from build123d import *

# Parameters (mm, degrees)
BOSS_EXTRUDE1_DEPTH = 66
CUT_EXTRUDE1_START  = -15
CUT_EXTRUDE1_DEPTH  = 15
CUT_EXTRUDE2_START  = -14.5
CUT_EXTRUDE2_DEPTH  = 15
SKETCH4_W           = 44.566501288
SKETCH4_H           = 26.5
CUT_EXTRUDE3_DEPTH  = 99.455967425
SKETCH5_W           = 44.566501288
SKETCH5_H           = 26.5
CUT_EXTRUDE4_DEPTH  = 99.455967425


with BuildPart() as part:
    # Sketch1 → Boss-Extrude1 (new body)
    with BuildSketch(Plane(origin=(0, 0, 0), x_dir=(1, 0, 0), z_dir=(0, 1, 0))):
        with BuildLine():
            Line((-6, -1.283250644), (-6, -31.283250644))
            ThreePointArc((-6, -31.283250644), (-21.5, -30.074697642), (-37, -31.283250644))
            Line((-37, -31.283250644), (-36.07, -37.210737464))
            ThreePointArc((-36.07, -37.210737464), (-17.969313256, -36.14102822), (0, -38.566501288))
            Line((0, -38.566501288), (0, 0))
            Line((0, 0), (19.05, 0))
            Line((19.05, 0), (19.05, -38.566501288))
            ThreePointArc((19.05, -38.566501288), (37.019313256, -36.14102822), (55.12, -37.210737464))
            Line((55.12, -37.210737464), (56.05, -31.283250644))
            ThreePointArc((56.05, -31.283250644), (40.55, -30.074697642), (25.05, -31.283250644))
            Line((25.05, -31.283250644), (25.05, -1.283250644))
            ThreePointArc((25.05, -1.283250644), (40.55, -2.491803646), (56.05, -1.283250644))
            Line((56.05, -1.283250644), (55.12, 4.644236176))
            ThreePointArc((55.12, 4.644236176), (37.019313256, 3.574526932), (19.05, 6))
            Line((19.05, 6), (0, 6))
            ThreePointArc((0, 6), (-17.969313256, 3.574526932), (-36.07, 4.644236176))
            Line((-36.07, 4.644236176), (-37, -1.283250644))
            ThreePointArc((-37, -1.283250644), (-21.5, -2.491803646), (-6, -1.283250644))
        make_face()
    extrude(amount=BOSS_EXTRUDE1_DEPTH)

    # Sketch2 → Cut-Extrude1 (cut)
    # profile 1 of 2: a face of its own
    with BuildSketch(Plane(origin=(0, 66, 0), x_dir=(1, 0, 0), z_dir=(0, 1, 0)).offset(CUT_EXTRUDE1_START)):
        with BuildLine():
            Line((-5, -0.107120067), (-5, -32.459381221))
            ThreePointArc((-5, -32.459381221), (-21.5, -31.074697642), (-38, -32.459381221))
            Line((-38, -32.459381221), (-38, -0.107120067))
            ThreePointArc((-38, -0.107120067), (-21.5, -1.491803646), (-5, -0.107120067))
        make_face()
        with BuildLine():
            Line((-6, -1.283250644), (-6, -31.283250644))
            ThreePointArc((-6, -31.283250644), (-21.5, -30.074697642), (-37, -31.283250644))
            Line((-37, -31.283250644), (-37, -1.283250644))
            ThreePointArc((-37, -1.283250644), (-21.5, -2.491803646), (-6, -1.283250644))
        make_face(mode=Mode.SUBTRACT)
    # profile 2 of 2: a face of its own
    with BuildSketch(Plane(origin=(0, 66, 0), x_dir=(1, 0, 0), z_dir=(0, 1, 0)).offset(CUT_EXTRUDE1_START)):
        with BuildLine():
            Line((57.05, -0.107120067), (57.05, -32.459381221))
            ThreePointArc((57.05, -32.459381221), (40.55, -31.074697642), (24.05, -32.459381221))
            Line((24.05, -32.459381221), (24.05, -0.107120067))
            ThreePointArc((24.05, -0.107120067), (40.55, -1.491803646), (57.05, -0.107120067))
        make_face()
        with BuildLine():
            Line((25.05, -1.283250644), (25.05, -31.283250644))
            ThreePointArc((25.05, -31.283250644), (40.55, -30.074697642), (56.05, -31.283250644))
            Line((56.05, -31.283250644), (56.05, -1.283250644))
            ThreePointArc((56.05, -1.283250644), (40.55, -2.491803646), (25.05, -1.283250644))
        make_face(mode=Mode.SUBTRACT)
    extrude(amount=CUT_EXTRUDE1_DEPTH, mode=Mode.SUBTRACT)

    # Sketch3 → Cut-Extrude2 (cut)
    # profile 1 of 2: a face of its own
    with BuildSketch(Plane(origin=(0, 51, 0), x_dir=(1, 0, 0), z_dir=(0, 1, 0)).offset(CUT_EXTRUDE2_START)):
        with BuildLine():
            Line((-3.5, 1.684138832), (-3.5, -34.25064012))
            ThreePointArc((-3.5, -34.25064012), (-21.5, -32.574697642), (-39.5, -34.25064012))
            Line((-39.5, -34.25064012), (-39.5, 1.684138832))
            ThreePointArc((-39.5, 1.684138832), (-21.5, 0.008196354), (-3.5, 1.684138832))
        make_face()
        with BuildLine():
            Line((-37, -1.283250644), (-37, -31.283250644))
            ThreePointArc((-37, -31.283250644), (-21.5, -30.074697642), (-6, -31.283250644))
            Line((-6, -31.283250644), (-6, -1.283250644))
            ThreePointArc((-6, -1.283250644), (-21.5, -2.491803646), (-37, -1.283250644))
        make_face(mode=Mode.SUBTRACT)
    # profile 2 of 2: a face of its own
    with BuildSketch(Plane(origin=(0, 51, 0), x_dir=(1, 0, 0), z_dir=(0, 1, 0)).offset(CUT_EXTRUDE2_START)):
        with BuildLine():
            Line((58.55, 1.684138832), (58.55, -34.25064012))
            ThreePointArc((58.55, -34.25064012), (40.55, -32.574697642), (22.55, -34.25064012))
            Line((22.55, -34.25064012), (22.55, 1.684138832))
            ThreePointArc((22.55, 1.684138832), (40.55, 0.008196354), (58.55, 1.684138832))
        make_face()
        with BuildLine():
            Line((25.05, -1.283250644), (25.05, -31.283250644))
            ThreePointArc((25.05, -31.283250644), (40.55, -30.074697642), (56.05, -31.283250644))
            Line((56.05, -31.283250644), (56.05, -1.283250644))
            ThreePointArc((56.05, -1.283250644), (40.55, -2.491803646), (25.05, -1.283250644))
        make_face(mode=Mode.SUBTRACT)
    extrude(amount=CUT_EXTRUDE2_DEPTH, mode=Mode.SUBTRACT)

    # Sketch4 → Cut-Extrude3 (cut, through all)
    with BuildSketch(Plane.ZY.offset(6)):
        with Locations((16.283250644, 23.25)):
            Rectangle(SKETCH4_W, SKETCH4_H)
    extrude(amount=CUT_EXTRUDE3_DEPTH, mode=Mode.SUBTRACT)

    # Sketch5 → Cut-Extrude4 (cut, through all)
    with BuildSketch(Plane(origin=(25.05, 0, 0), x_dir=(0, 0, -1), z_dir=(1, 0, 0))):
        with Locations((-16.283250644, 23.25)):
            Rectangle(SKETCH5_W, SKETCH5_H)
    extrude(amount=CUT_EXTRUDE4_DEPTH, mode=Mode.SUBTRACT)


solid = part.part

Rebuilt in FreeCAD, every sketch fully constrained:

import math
import FreeCAD as App
import Part
import Sketcher


def add_polygon(sketch, points):
    """Adds a closed chain of lines whose ends are joined by coincident constraints."""
    first, n = sketch.GeometryCount, len(points)
    for a, b in zip(points, points[1:] + points[:1]):
        sketch.addGeometry(Part.LineSegment(App.Vector(*a, 0), App.Vector(*b, 0)), False)
    for i in range(n):
        sketch.addConstraint(Sketcher.Constraint("Coincident", first + i, 2, first + (i + 1) % n, 1))

doc = App.newDocument("Part")
body = doc.addObject("PartDesign::Body", "Body")

# Sketch on XZ plane
sketch1 = body.newObject("Sketcher::SketchObject", "Sketch")
sketch1.AttachmentSupport = (doc.getObject("XZ_Plane"), [""])
sketch1.MapMode = "FlatFace"
sketch1.addGeometry(Part.LineSegment(App.Vector(-6, 1, 0), App.Vector(-6, 31, 0)), False)
sketch1.addGeometry(Part.ArcOfCircle(Part.Circle(App.Vector(-22, 130, 0), App.Vector(0, 0, 1), 100), math.radians(-98.92), math.radians(-81.08)), False)
sketch1.addGeometry(Part.LineSegment(App.Vector(-37, 31, 0), App.Vector(-36, 37, 0)), False)
sketch1.addGeometry(Part.ArcOfCircle(Part.Circle(App.Vector(-22, 130, 0), App.Vector(0, 0, 1), 94), math.radians(-99), math.radians(-77)), False)
sketch1.addGeometry(Part.LineSegment(App.Vector(0, 39, 0), App.Vector(0, 0, 0)), False)
sketch1.addGeometry(Part.LineSegment(App.Vector(0, 0, 0), App.Vector(19, 0, 0)), False)
sketch1.addGeometry(Part.LineSegment(App.Vector(19, 0, 0), App.Vector(19, 39, 0)), False)
sketch1.addGeometry(Part.ArcOfCircle(Part.Circle(App.Vector(41, 130, 0), App.Vector(0, 0, 1), 94), math.radians(-103), math.radians(-81)), False)
sketch1.addGeometry(Part.LineSegment(App.Vector(55, 37, 0), App.Vector(56, 31, 0)), False)
sketch1.addGeometry(Part.ArcOfCircle(Part.Circle(App.Vector(41, 130, 0), App.Vector(0, 0, 1), 100), math.radians(-98.92), math.radians(-81.08)), False)
sketch1.addGeometry(Part.LineSegment(App.Vector(25, 31, 0), App.Vector(25, 1, 0)), False)
sketch1.addGeometry(Part.ArcOfCircle(Part.Circle(App.Vector(41, -98, 0), App.Vector(0, 0, 1), 100), math.radians(81.08), math.radians(98.92)), False)
sketch1.addGeometry(Part.LineSegment(App.Vector(56, 1, 0), App.Vector(55, -5, 0)), False)
sketch1.addGeometry(Part.ArcOfCircle(Part.Circle(App.Vector(41, -98, 0), App.Vector(0, 0, 1), 94), math.radians(81), math.radians(103)), False)
sketch1.addGeometry(Part.LineSegment(App.Vector(19, -6, 0), App.Vector(0, -6, 0)), False)
sketch1.addGeometry(Part.ArcOfCircle(Part.Circle(App.Vector(-22, -98, 0), App.Vector(0, 0, 1), 94), math.radians(77), math.radians(99)), False)
sketch1.addGeometry(Part.LineSegment(App.Vector(-36, -5, 0), App.Vector(-37, 1, 0)), False)
sketch1.addGeometry(Part.ArcOfCircle(Part.Circle(App.Vector(-22, -98, 0), App.Vector(0, 0, 1), 100), math.radians(81.08), math.radians(98.92)), False)
sketch1.addConstraint(Sketcher.Constraint("Coincident", 0, 2, 1, 2))
sketch1.addConstraint(Sketcher.Constraint("Coincident", 1, 1, 2, 1))
sketch1.addConstraint(Sketcher.Constraint("Coincident", 2, 2, 3, 1))
sketch1.addConstraint(Sketcher.Constraint("Coincident", 3, 2, 4, 1))
sketch1.addConstraint(Sketcher.Constraint("Coincident", 4, 2, 5, 1))
sketch1.addConstraint(Sketcher.Constraint("Coincident", 5, 2, 6, 1))
sketch1.addConstraint(Sketcher.Constraint("Coincident", 6, 2, 7, 1))
sketch1.addConstraint(Sketcher.Constraint("Coincident", 7, 2, 8, 1))
sketch1.addConstraint(Sketcher.Constraint("Coincident", 8, 2, 9, 2))
sketch1.addConstraint(Sketcher.Constraint("Coincident", 9, 1, 10, 1))
sketch1.addConstraint(Sketcher.Constraint("Coincident", 10, 2, 11, 2))
sketch1.addConstraint(Sketcher.Constraint("Coincident", 11, 1, 12, 1))
sketch1.addConstraint(Sketcher.Constraint("Coincident", 12, 2, 13, 1))
sketch1.addConstraint(Sketcher.Constraint("Coincident", 13, 2, 14, 1))
sketch1.addConstraint(Sketcher.Constraint("Coincident", 14, 2, 15, 1))
sketch1.addConstraint(Sketcher.Constraint("Coincident", 15, 2, 16, 1))
sketch1.addConstraint(Sketcher.Constraint("Coincident", 16, 2, 17, 2))
sketch1.addConstraint(Sketcher.Constraint("Coincident", 17, 1, 0, 1))
sketch1.addConstraint(Sketcher.Constraint("Vertical", 0))
sketch1.addConstraint(Sketcher.Constraint("Vertical", 4))
sketch1.addConstraint(Sketcher.Constraint("Horizontal", 5))
sketch1.addConstraint(Sketcher.Constraint("Vertical", 6))
sketch1.addConstraint(Sketcher.Constraint("Vertical", 10))
sketch1.addConstraint(Sketcher.Constraint("Horizontal", 14))
sketch1.addConstraint(Sketcher.Constraint("Coincident", 4, 2, -1, 1))
sketch1.addConstraint(Sketcher.Constraint("Coincident", 3, 3, 1, 3))
sketch1.addConstraint(Sketcher.Constraint("Coincident", 9, 3, 7, 3))
sketch1.addConstraint(Sketcher.Constraint("Coincident", 13, 3, 11, 3))
sketch1.addConstraint(Sketcher.Constraint("Coincident", 17, 3, 15, 3))
sketch1.addConstraint(Sketcher.Constraint("Equal", 3, 7))
sketch1.addConstraint(Sketcher.Constraint("Equal", 1, 9))
sketch1.addConstraint(Sketcher.Constraint("Equal", 9, 11))
sketch1.addConstraint(Sketcher.Constraint("Equal", 7, 13))
sketch1.addConstraint(Sketcher.Constraint("Equal", 13, 15))
sketch1.addConstraint(Sketcher.Constraint("Equal", 11, 17))
sketch1.addConstraint(Sketcher.Constraint("PointOnObject", 14, 2, -2))
sketch1.addConstraint(Sketcher.Constraint("Parallel", 2, 12))
sketch1.addConstraint(Sketcher.Constraint("Parallel", 8, 16))
sketch1.addConstraint(Sketcher.Constraint("Horizontal", 3, 3, 7, 3))
sketch1.addConstraint(Sketcher.Constraint("Horizontal", 13, 3, 15, 3))
sketch1.addConstraint(Sketcher.Constraint("Horizontal", 0, 2, 1, 1))
sketch1.addConstraint(Sketcher.Constraint("Horizontal", 3, 2, 6, 2))
sketch1.addConstraint(Sketcher.Constraint("Horizontal", 2, 2, 7, 2))
sketch1.addConstraint(Sketcher.Constraint("Horizontal", 1, 1, 8, 2))
sketch1.addConstraint(Sketcher.Constraint("Horizontal", 8, 2, 9, 1))
sketch1.addConstraint(Sketcher.Constraint("Horizontal", 10, 2, 11, 1))
sketch1.addConstraint(Sketcher.Constraint("Horizontal", 12, 2, 15, 2))
sketch1.addConstraint(Sketcher.Constraint("Horizontal", 16, 2, 17, 1))
sketch1.addConstraint(Sketcher.Constraint("Vertical", 9, 3, 11, 3))
sketch1.addConstraint(Sketcher.Constraint("Radius", 1, 100.0))
sketch1.addConstraint(Sketcher.Constraint("Radius", 3, 94.0))
sketch1.addConstraint(Sketcher.Constraint("DistanceY", 0, 1, 0, 2, 30.0))
sketch1.addConstraint(Sketcher.Constraint("DistanceX", 0, 2, -1, 1, 6.0))
sketch1.addConstraint(Sketcher.Constraint("DistanceX", 1, 1, -1, 1, 37.0))
sketch1.addConstraint(Sketcher.Constraint("DistanceY", 13, 2, -1, 1, 6.0))
sketch1.addConstraint(Sketcher.Constraint("DistanceX", 5, 1, 5, 2, 19.05))
sketch1.addConstraint(Sketcher.Constraint("DistanceX", 2, 2, -1, 1, 36.07))
pad1 = body.newObject("PartDesign::Pad", "Pad")
pad1.Profile = sketch1
pad1.Length = 66
pad1.Reversed = True

# Sketch on XZ plane
sketch2 = body.newObject("Sketcher::SketchObject", "Sketch001")
sketch2.AttachmentSupport = (doc.getObject("XZ_Plane"), [""])
sketch2.MapMode = "FlatFace"
sketch2.AttachmentOffset = App.Placement(App.Vector(0, 0, -51), App.Rotation())
sketch2.addGeometry(Part.LineSegment(App.Vector(-5, 32, 0), App.Vector(-5, 0, 0)), False)
sketch2.addGeometry(Part.ArcOfCircle(Part.Circle(App.Vector(-22, -98, 0), App.Vector(0, 0, 1), 99), math.radians(80.41), math.radians(99.59)), False)
sketch2.addGeometry(Part.LineSegment(App.Vector(-38, 0, 0), App.Vector(-38, 32, 0)), False)
sketch2.addGeometry(Part.ArcOfCircle(Part.Circle(App.Vector(-22, 130, 0), App.Vector(0, 0, 1), 99), math.radians(-99.59), math.radians(-80.41)), False)
sketch2.addGeometry(Part.LineSegment(App.Vector(-6, 1, 0), App.Vector(-6, 31, 0)), False)
sketch2.addGeometry(Part.ArcOfCircle(Part.Circle(App.Vector(-22, 130, 0), App.Vector(0, 0, 1), 100), math.radians(-98.92), math.radians(-81.08)), False)
sketch2.addGeometry(Part.LineSegment(App.Vector(-37, 31, 0), App.Vector(-37, 1, 0)), False)
sketch2.addGeometry(Part.ArcOfCircle(Part.Circle(App.Vector(-22, -98, 0), App.Vector(0, 0, 1), 100), math.radians(81.08), math.radians(98.92)), False)
sketch2.addGeometry(Part.LineSegment(App.Vector(57, 32, 0), App.Vector(57, 0, 0)), False)
sketch2.addGeometry(Part.ArcOfCircle(Part.Circle(App.Vector(41, -98, 0), App.Vector(0, 0, 1), 99), math.radians(80.41), math.radians(99.59)), False)
sketch2.addGeometry(Part.LineSegment(App.Vector(24, 0, 0), App.Vector(24, 32, 0)), False)
sketch2.addGeometry(Part.ArcOfCircle(Part.Circle(App.Vector(41, 130, 0), App.Vector(0, 0, 1), 99), math.radians(-99.59), math.radians(-80.41)), False)
sketch2.addGeometry(Part.ArcOfCircle(Part.Circle(App.Vector(41, -98, 0), App.Vector(0, 0, 1), 100), math.radians(81.08), math.radians(98.92)), False)
sketch2.addGeometry(Part.LineSegment(App.Vector(56, 1, 0), App.Vector(56, 31, 0)), False)
sketch2.addGeometry(Part.ArcOfCircle(Part.Circle(App.Vector(41, 130, 0), App.Vector(0, 0, 1), 100), math.radians(-98.92), math.radians(-81.08)), False)
sketch2.addGeometry(Part.LineSegment(App.Vector(25, 31, 0), App.Vector(25, 1, 0)), False)
sketch2.addConstraint(Sketcher.Constraint("Coincident", 0, 2, 1, 1))
sketch2.addConstraint(Sketcher.Constraint("Coincident", 1, 2, 2, 1))
sketch2.addConstraint(Sketcher.Constraint("Coincident", 2, 2, 3, 1))
sketch2.addConstraint(Sketcher.Constraint("Coincident", 3, 2, 0, 1))
sketch2.addConstraint(Sketcher.Constraint("Coincident", 4, 2, 5, 2))
sketch2.addConstraint(Sketcher.Constraint("Coincident", 5, 1, 6, 1))
sketch2.addConstraint(Sketcher.Constraint("Coincident", 6, 2, 7, 2))
sketch2.addConstraint(Sketcher.Constraint("Coincident", 7, 1, 4, 1))
sketch2.addConstraint(Sketcher.Constraint("Coincident", 8, 2, 9, 1))
sketch2.addConstraint(Sketcher.Constraint("Coincident", 9, 2, 10, 1))
sketch2.addConstraint(Sketcher.Constraint("Coincident", 10, 2, 11, 1))
sketch2.addConstraint(Sketcher.Constraint("Coincident", 11, 2, 8, 1))
sketch2.addConstraint(Sketcher.Constraint("Coincident", 12, 1, 13, 1))
sketch2.addConstraint(Sketcher.Constraint("Coincident", 13, 2, 14, 2))
sketch2.addConstraint(Sketcher.Constraint("Coincident", 14, 1, 15, 1))
sketch2.addConstraint(Sketcher.Constraint("Coincident", 15, 2, 12, 2))
sketch2.addConstraint(Sketcher.Constraint("Vertical", 0))
sketch2.addConstraint(Sketcher.Constraint("Vertical", 2))
sketch2.addConstraint(Sketcher.Constraint("Vertical", 4))
sketch2.addConstraint(Sketcher.Constraint("Vertical", 6))
sketch2.addConstraint(Sketcher.Constraint("Vertical", 8))
sketch2.addConstraint(Sketcher.Constraint("Vertical", 10))
sketch2.addConstraint(Sketcher.Constraint("Vertical", 13))
sketch2.addConstraint(Sketcher.Constraint("Vertical", 15))
sketch2.addConstraint(Sketcher.Constraint("Coincident", 5, 3, 3, 3))
sketch2.addConstraint(Sketcher.Constraint("Coincident", 7, 3, 1, 3))
sketch2.addConstraint(Sketcher.Constraint("Coincident", 12, 3, 9, 3))
sketch2.addConstraint(Sketcher.Constraint("Coincident", 14, 3, 11, 3))
sketch2.addConstraint(Sketcher.Constraint("Equal", 1, 3))
sketch2.addConstraint(Sketcher.Constraint("Equal", 5, 7))
sketch2.addConstraint(Sketcher.Constraint("Equal", 3, 9))
sketch2.addConstraint(Sketcher.Constraint("Equal", 9, 11))
sketch2.addConstraint(Sketcher.Constraint("Equal", 7, 12))
sketch2.addConstraint(Sketcher.Constraint("Equal", 12, 14))
sketch2.addConstraint(Sketcher.Constraint("Horizontal", 7, 3, 9, 3))
sketch2.addConstraint(Sketcher.Constraint("Horizontal", 5, 3, 11, 3))
sketch2.addConstraint(Sketcher.Constraint("Horizontal", 0, 2, 1, 2))
sketch2.addConstraint(Sketcher.Constraint("Horizontal", 2, 2, 3, 2))
sketch2.addConstraint(Sketcher.Constraint("Horizontal", 4, 2, 5, 1))
sketch2.addConstraint(Sketcher.Constraint("Horizontal", 1, 2, 8, 2))
sketch2.addConstraint(Sketcher.Constraint("Horizontal", 8, 2, 9, 2))
sketch2.addConstraint(Sketcher.Constraint("Horizontal", 3, 2, 10, 2))
sketch2.addConstraint(Sketcher.Constraint("Horizontal", 7, 1, 12, 1))
sketch2.addConstraint(Sketcher.Constraint("Horizontal", 13, 2, 14, 1))
sketch2.addConstraint(Sketcher.Constraint("Radius", 1, 99.0))
sketch2.addConstraint(Sketcher.Constraint("Radius", 5, 100.0))
sketch2.addConstraint(Sketcher.Constraint("DistanceY", 4, 1, 4, 2, 30.0))
sketch2.addConstraint(Sketcher.Constraint("DistanceX", 0, 2, -1, 1, 5.0))
sketch2.addConstraint(Sketcher.Constraint("DistanceX", 1, 2, -1, 1, 38.0))
sketch2.addConstraint(Sketcher.Constraint("DistanceX", 4, 2, -1, 1, 6.0))
sketch2.addConstraint(Sketcher.Constraint("DistanceX", -1, 1, 9, 3, 40.55))
sketch2.addConstraint(Sketcher.Constraint("DistanceY", -1, 1, 0, 2, 0.10712))
pocket1 = body.newObject("PartDesign::Pocket", "Pocket")
pocket1.Profile = sketch2
pocket1.Length = 15

# Sketch on XZ plane
sketch3 = body.newObject("Sketcher::SketchObject", "Sketch002")
sketch3.AttachmentSupport = (doc.getObject("XZ_Plane"), [""])
sketch3.MapMode = "FlatFace"
sketch3.AttachmentOffset = App.Placement(App.Vector(0, 0, -36.5), App.Rotation())
sketch3.addGeometry(Part.LineSegment(App.Vector(-4, 34, 0), App.Vector(-4, -2, 0)), False)
sketch3.addGeometry(Part.ArcOfCircle(Part.Circle(App.Vector(-22, -98, 0), App.Vector(0, 0, 1), 97), math.radians(79), math.radians(101)), False)
sketch3.addGeometry(Part.LineSegment(App.Vector(-40, -2, 0), App.Vector(-40, 34, 0)), False)
sketch3.addGeometry(Part.ArcOfCircle(Part.Circle(App.Vector(-22, 130, 0), App.Vector(0, 0, 1), 97), math.radians(-101), math.radians(-79)), False)
sketch3.addGeometry(Part.ArcOfCircle(Part.Circle(App.Vector(-22, -98, 0), App.Vector(0, 0, 1), 100), math.radians(81.08), math.radians(98.92)), False)
sketch3.addGeometry(Part.LineSegment(App.Vector(-6, 1, 0), App.Vector(-6, 31, 0)), False)
sketch3.addGeometry(Part.ArcOfCircle(Part.Circle(App.Vector(-22, 130, 0), App.Vector(0, 0, 1), 100), math.radians(-98.92), math.radians(-81.08)), False)
sketch3.addGeometry(Part.LineSegment(App.Vector(-37, 31, 0), App.Vector(-37, 1, 0)), False)
sketch3.addGeometry(Part.LineSegment(App.Vector(59, 34, 0), App.Vector(59, -2, 0)), False)
sketch3.addGeometry(Part.ArcOfCircle(Part.Circle(App.Vector(41, -98, 0), App.Vector(0, 0, 1), 97), math.radians(79), math.radians(101)), False)
sketch3.addGeometry(Part.LineSegment(App.Vector(23, -2, 0), App.Vector(23, 34, 0)), False)
sketch3.addGeometry(Part.ArcOfCircle(Part.Circle(App.Vector(41, 130, 0), App.Vector(0, 0, 1), 97), math.radians(-101), math.radians(-79)), False)
sketch3.addGeometry(Part.ArcOfCircle(Part.Circle(App.Vector(41, -98, 0), App.Vector(0, 0, 1), 100), math.radians(81.08), math.radians(98.92)), False)
sketch3.addGeometry(Part.LineSegment(App.Vector(56, 1, 0), App.Vector(56, 31, 0)), False)
sketch3.addGeometry(Part.ArcOfCircle(Part.Circle(App.Vector(41, 130, 0), App.Vector(0, 0, 1), 100), math.radians(-98.92), math.radians(-81.08)), False)
sketch3.addGeometry(Part.LineSegment(App.Vector(25, 31, 0), App.Vector(25, 1, 0)), False)
sketch3.addConstraint(Sketcher.Constraint("Coincident", 0, 2, 1, 1))
sketch3.addConstraint(Sketcher.Constraint("Coincident", 1, 2, 2, 1))
sketch3.addConstraint(Sketcher.Constraint("Coincident", 2, 2, 3, 1))
sketch3.addConstraint(Sketcher.Constraint("Coincident", 3, 2, 0, 1))
sketch3.addConstraint(Sketcher.Constraint("Coincident", 4, 1, 5, 1))
sketch3.addConstraint(Sketcher.Constraint("Coincident", 5, 2, 6, 2))
sketch3.addConstraint(Sketcher.Constraint("Coincident", 6, 1, 7, 1))
sketch3.addConstraint(Sketcher.Constraint("Coincident", 7, 2, 4, 2))
sketch3.addConstraint(Sketcher.Constraint("Coincident", 8, 2, 9, 1))
sketch3.addConstraint(Sketcher.Constraint("Coincident", 9, 2, 10, 1))
sketch3.addConstraint(Sketcher.Constraint("Coincident", 10, 2, 11, 1))
sketch3.addConstraint(Sketcher.Constraint("Coincident", 11, 2, 8, 1))
sketch3.addConstraint(Sketcher.Constraint("Coincident", 12, 1, 13, 1))
sketch3.addConstraint(Sketcher.Constraint("Coincident", 13, 2, 14, 2))
sketch3.addConstraint(Sketcher.Constraint("Coincident", 14, 1, 15, 1))
sketch3.addConstraint(Sketcher.Constraint("Coincident", 15, 2, 12, 2))
sketch3.addConstraint(Sketcher.Constraint("Vertical", 0))
sketch3.addConstraint(Sketcher.Constraint("Vertical", 2))
sketch3.addConstraint(Sketcher.Constraint("Vertical", 5))
sketch3.addConstraint(Sketcher.Constraint("Vertical", 7))
sketch3.addConstraint(Sketcher.Constraint("Vertical", 8))
sketch3.addConstraint(Sketcher.Constraint("Vertical", 10))
sketch3.addConstraint(Sketcher.Constraint("Vertical", 13))
sketch3.addConstraint(Sketcher.Constraint("Vertical", 15))
sketch3.addConstraint(Sketcher.Constraint("Coincident", 4, 3, 1, 3))
sketch3.addConstraint(Sketcher.Constraint("Coincident", 6, 3, 3, 3))
sketch3.addConstraint(Sketcher.Constraint("Coincident", 12, 3, 9, 3))
sketch3.addConstraint(Sketcher.Constraint("Coincident", 14, 3, 11, 3))
sketch3.addConstraint(Sketcher.Constraint("Equal", 1, 3))
sketch3.addConstraint(Sketcher.Constraint("Equal", 4, 6))
sketch3.addConstraint(Sketcher.Constraint("Equal", 3, 9))
sketch3.addConstraint(Sketcher.Constraint("Equal", 9, 11))
sketch3.addConstraint(Sketcher.Constraint("Equal", 6, 12))
sketch3.addConstraint(Sketcher.Constraint("Equal", 12, 14))
sketch3.addConstraint(Sketcher.Constraint("Horizontal", 4, 3, 9, 3))
sketch3.addConstraint(Sketcher.Constraint("Horizontal", 6, 3, 11, 3))
sketch3.addConstraint(Sketcher.Constraint("Horizontal", 0, 2, 1, 2))
sketch3.addConstraint(Sketcher.Constraint("Horizontal", 2, 2, 3, 2))
sketch3.addConstraint(Sketcher.Constraint("Horizontal", 5, 2, 6, 1))
sketch3.addConstraint(Sketcher.Constraint("Horizontal", 1, 2, 8, 2))
sketch3.addConstraint(Sketcher.Constraint("Horizontal", 8, 2, 9, 2))
sketch3.addConstraint(Sketcher.Constraint("Horizontal", 3, 2, 10, 2))
sketch3.addConstraint(Sketcher.Constraint("Horizontal", 7, 2, 12, 1))
sketch3.addConstraint(Sketcher.Constraint("Horizontal", 13, 2, 14, 1))
sketch3.addConstraint(Sketcher.Constraint("Radius", 4, 100.0))
sketch3.addConstraint(Sketcher.Constraint("Radius", 1, 97.5))
sketch3.addConstraint(Sketcher.Constraint("DistanceY", 5, 1, 5, 2, 30.0))
sketch3.addConstraint(Sketcher.Constraint("DistanceX", 4, 1, -1, 1, 6.0))
sketch3.addConstraint(Sketcher.Constraint("DistanceX", 6, 1, -1, 1, 37.0))
sketch3.addConstraint(Sketcher.Constraint("DistanceX", 4, 3, 0, 2, 18.0))
sketch3.addConstraint(Sketcher.Constraint("DistanceX", -1, 1, 9, 3, 40.55))
sketch3.addConstraint(Sketcher.Constraint("DistanceY", 0, 2, -1, 1, 1.684139))
pocket2 = body.newObject("PartDesign::Pocket", "Pocket001")
pocket2.Profile = sketch3
pocket2.Length = 15

# Sketch on YZ plane
sketch4 = body.newObject("Sketcher::SketchObject", "Sketch003")
sketch4.AttachmentSupport = (doc.getObject("YZ_Plane"), [""])
sketch4.MapMode = "FlatFace"
sketch4.AttachmentOffset = App.Placement(App.Vector(0, 0, -6), App.Rotation())
add_polygon(sketch4, [(36, -6), (10, -6), (10, 39), (36, 39)])  # lines 0-3
sketch4.addConstraint(Sketcher.Constraint("Horizontal", 0))
sketch4.addConstraint(Sketcher.Constraint("Vertical", 1))
sketch4.addConstraint(Sketcher.Constraint("Horizontal", 2))
sketch4.addConstraint(Sketcher.Constraint("Vertical", 3))
sketch4.addConstraint(Sketcher.Constraint("DistanceX", 0, 2, 0, 1, 26.5))
sketch4.addConstraint(Sketcher.Constraint("DistanceX", -1, 1, 0, 2, 10.0))
sketch4.addConstraint(Sketcher.Constraint("DistanceY", 0, 2, -1, 1, 6.0))
sketch4.addConstraint(Sketcher.Constraint("DistanceY", 1, 1, 1, 2, 44.566501))
pocket3 = body.newObject("PartDesign::Pocket", "Pocket002")
pocket3.Profile = sketch4
pocket3.Type = "ThroughAll"

# Sketch on YZ plane
sketch5 = body.newObject("Sketcher::SketchObject", "Sketch004")
sketch5.AttachmentSupport = (doc.getObject("YZ_Plane"), [""])
sketch5.MapMode = "FlatFace"
sketch5.AttachmentOffset = App.Placement(App.Vector(0, 0, 25.05), App.Rotation())
add_polygon(sketch5, [(36, 39), (10, 39), (10, -6), (36, -6)])  # lines 0-3
sketch5.addConstraint(Sketcher.Constraint("Horizontal", 0))
sketch5.addConstraint(Sketcher.Constraint("Vertical", 1))
sketch5.addConstraint(Sketcher.Constraint("Horizontal", 2))
sketch5.addConstraint(Sketcher.Constraint("Vertical", 3))
sketch5.addConstraint(Sketcher.Constraint("DistanceX", 0, 2, 0, 1, 26.5))
sketch5.addConstraint(Sketcher.Constraint("DistanceX", -1, 1, 0, 2, 10.0))
sketch5.addConstraint(Sketcher.Constraint("DistanceY", 1, 2, -1, 1, 6.0))
sketch5.addConstraint(Sketcher.Constraint("DistanceY", 1, 2, 1, 1, 44.566501))
pocket4 = body.newObject("PartDesign::Pocket", "Pocket003")
pocket4.Profile = sketch5
pocket4.Type = "ThroughAll"
pocket4.Reversed = True

doc.recompute()
